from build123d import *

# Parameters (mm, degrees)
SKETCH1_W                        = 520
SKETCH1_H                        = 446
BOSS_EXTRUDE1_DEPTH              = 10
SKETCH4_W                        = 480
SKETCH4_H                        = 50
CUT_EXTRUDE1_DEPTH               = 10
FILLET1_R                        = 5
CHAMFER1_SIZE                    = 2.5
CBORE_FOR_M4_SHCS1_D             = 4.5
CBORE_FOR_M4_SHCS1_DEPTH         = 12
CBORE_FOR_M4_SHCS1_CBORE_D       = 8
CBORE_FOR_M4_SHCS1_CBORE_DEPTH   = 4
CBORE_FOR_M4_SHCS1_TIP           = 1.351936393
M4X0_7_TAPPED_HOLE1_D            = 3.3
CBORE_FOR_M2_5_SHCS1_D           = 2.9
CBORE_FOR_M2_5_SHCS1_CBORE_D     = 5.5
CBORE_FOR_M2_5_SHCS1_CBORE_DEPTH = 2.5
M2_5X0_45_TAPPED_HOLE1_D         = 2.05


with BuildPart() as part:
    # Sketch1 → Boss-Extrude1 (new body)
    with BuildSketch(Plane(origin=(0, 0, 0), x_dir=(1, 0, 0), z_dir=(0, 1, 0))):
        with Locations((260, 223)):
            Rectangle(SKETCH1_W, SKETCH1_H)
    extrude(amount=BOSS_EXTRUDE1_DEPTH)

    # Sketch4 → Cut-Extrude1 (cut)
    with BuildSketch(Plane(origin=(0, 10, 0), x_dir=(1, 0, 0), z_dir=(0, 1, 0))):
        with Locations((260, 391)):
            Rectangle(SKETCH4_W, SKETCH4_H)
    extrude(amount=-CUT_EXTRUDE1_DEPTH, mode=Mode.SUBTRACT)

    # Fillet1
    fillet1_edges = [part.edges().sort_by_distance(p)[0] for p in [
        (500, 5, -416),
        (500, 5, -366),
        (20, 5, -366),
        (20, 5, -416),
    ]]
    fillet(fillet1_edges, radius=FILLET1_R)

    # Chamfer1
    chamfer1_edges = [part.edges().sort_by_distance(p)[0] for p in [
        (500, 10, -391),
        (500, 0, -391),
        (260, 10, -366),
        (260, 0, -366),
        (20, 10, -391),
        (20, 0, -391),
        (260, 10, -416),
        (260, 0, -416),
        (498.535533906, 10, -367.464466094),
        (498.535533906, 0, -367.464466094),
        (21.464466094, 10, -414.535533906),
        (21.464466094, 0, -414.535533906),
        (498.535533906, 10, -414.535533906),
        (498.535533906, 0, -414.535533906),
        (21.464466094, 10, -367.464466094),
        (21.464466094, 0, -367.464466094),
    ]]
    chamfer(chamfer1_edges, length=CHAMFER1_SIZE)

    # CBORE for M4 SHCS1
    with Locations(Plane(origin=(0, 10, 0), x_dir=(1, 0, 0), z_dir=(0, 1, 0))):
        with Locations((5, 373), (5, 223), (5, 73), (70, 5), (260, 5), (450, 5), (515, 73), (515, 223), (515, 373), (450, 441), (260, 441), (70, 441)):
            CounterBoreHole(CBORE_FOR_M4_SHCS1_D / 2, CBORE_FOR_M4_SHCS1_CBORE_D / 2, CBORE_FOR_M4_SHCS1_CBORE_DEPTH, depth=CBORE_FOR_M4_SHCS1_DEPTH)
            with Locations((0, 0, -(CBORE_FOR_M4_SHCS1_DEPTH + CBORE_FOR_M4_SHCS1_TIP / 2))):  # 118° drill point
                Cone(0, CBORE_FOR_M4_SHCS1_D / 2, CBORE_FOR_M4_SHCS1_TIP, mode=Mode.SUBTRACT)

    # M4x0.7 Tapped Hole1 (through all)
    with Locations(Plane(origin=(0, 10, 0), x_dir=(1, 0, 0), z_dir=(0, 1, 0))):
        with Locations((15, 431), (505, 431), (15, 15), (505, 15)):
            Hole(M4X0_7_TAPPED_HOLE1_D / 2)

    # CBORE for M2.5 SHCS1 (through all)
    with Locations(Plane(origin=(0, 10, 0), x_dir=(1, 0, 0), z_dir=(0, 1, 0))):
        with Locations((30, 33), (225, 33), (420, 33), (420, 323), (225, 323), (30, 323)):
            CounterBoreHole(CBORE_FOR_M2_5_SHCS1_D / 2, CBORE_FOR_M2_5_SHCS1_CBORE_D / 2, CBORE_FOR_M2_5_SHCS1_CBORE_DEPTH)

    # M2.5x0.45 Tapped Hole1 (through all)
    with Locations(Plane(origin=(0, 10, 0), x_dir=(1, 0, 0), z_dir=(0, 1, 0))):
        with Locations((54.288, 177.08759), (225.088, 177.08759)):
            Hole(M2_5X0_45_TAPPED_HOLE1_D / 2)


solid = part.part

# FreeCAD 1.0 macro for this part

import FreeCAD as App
import Part
import Sketcher
Q = App.Units.Quantity


def edges_at(feature, points):
    """Names of the edges that pass closest to the given points."""
    edges = feature.Shape.Edges
    near = lambda p: min(range(len(edges)), key=lambda i: edges[i].distToShape(Part.Vertex(*p))[0])
    return sorted({f"Edge{near(p) + 1}" for p in points})


def add_polygon(sketch, points):
    """Adds a closed chain of lines whose ends are joined by coincident constraints."""
    first, n = sketch.GeometryCount, len(points)
    for a, b in zip(points, points[1:] + points[:1]):
        sketch.addGeometry(Part.LineSegment(App.Vector(*a, 0), App.Vector(*b, 0)), False)
    for i in range(n):
        sketch.addConstraint(Sketcher.Constraint("Coincident", first + i, 2, first + (i + 1) % n, 1))

doc = App.newDocument("Part")
params = doc.addObject("Spreadsheet::Sheet", "Params")
for row, (alias, value) in enumerate([
    ("sketch1_width", "520 mm"),
    ("sketch1_height", "446 mm"),
    ("pad1_length", "10 mm"),
    ("sketch2_width", "480 mm"),
    ("sketch2_height", "50 mm"),
    ("pocket1_length", "10 mm"),
    ("fillet_radius", "5 mm"),
    ("chamfer_size", "2.5 mm"),
    ("sketch3_diameter", "4.5 mm"),
    ("hole_diameter", "4.5 mm"),
    ("hole_depth", "12 mm"),
    ("hole_cbore_diameter", "8 mm"),
    ("hole_cbore_depth", "4 mm"),
    ("sketch4_diameter", "3.3 mm"),
    ("hole2_diameter", "3.3 mm"),
    ("sketch5_diameter", "2.9 mm"),
    ("hole3_diameter", "2.9 mm"),
    ("hole3_cbore_diameter", "5.5 mm"),
    ("hole3_cbore_depth", "2.5 mm"),
    ("sketch6_diameter", "2.05 mm"),
    ("hole4_diameter", "2.05 mm"),
], start=1):
    params.set(f"A{row}", alias)
    params.set(f"B{row}", "=" + value)
    params.setAlias(f"B{row}", alias)

body = doc.addObject("PartDesign::Body", "Body")

sketch1 = body.newObject("Sketcher::SketchObject", "Sketch")
sketch1.AttachmentSupport = (doc.getObject("XZ_Plane"), [""])
sketch1.MapMode = "FlatFace"
add_polygon(sketch1, [(0, -446), (0, 0), (520, 0), (520, -446)])
sketch1.addConstraint(Sketcher.Constraint("Vertical", 0))
sketch1.addConstraint(Sketcher.Constraint("Horizontal", 1))
sketch1.addConstraint(Sketcher.Constraint("Vertical", 2))
sketch1.addConstraint(Sketcher.Constraint("Horizontal", 3))
sketch1.addConstraint(Sketcher.Constraint("Coincident", 0, 2, -1, 1))
sketch1.addConstraint(Sketcher.Constraint("DistanceX", 1, 1, 1, 2, Q("520 mm")))
sketch1.addConstraint(Sketcher.Constraint("DistanceY", 0, 1, 0, 2, Q("446 mm")))
sketch1.setExpression("Constraints[9]", "Params.sketch1_width")
sketch1.setExpression("Constraints[10]", "Params.sketch1_height")
pad1 = body.newObject("PartDesign::Pad", "Pad")
pad1.Profile = sketch1
pad1.setExpression("Length", "Params.pad1_length")
pad1.Reversed = True

sketch2 = body.newObject("Sketcher::SketchObject", "Sketch001")
sketch2.AttachmentSupport = (doc.getObject("XZ_Plane"), [""])
sketch2.MapMode = "FlatFace"
sketch2.AttachmentOffset = App.Placement(App.Vector(0, 0, -10), App.Rotation())
add_polygon(sketch2, [(20, -416), (20, -366), (500, -366), (500, -416)])
sketch2.addConstraint(Sketcher.Constraint("Vertical", 0))
sketch2.addConstraint(Sketcher.Constraint("Horizontal", 1))
sketch2.addConstraint(Sketcher.Constraint("Vertical", 2))
sketch2.addConstraint(Sketcher.Constraint("Horizontal", 3))
sketch2.addConstraint(Sketcher.Constraint("DistanceX", 1, 1, 1, 2, Q("480 mm")))
sketch2.addConstraint(Sketcher.Constraint("DistanceY", 0, 1, 0, 2, Q("50 mm")))
sketch2.addConstraint(Sketcher.Constraint("DistanceX", -1, 1, 0, 2, Q("20 mm")))
sketch2.addConstraint(Sketcher.Constraint("DistanceY", 0, 2, -1, 1, Q("366 mm")))
sketch2.setExpression("Constraints[8]", "Params.sketch2_width")
sketch2.setExpression("Constraints[9]", "Params.sketch2_height")
pocket1 = body.newObject("PartDesign::Pocket", "Pocket")
pocket1.Profile = sketch2
pocket1.setExpression("Length", "Params.pocket1_length")
pocket1.Reversed = True
doc.recompute()

fillet = body.newObject("PartDesign::Fillet", "Fillet")
fillet.Base = (pocket1, edges_at(pocket1, [
    (500, 5, -416),
    (500, 5, -366),
    (20, 5, -366),
    (20, 5, -416),
]))
fillet.setExpression("Radius", "Params.fillet_radius")
doc.recompute()

chamfer = body.newObject("PartDesign::Chamfer", "Chamfer")
chamfer.Base = (fillet, edges_at(fillet, [
    (500, 10, -391),
    (500, 0, -391),
    (260, 10, -366),
    (260, 0, -366),
    (20, 10, -391),
    (20, 0, -391),
    (260, 10, -416),
    (260, 0, -416),
    (498.536, 10, -367.464),
    (498.536, 0, -367.464),
    (21.464, 10, -414.536),
    (21.464, 0, -414.536),
    (498.536, 10, -414.536),
    (498.536, 0, -414.536),
    (21.464, 10, -367.464),
    (21.464, 0, -367.464),
]))
chamfer.setExpression("Size", "Params.chamfer_size")

sketch3 = body.newObject("Sketcher::SketchObject", "Sketch002")
sketch3.AttachmentSupport = (doc.getObject("XZ_Plane"), [""])
sketch3.MapMode = "FlatFace"
sketch3.AttachmentOffset = App.Placement(App.Vector(0, 0, -10), App.Rotation())
sketch3.addGeometry(Part.Circle(App.Vector(5, -373, 0), App.Vector(0, 0, 1), 2.25), False)
sketch3.addGeometry(Part.Circle(App.Vector(5, -223, 0), App.Vector(0, 0, 1), 2.25), False)
sketch3.addGeometry(Part.Circle(App.Vector(5, -73, 0), App.Vector(0, 0, 1), 2.25), False)
sketch3.addGeometry(Part.Circle(App.Vector(70, -5, 0), App.Vector(0, 0, 1), 2.25), False)
sketch3.addGeometry(Part.Circle(App.Vector(260, -5, 0), App.Vector(0, 0, 1), 2.25), False)
sketch3.addGeometry(Part.Circle(App.Vector(450, -5, 0), App.Vector(0, 0, 1), 2.25), False)
sketch3.addGeometry(Part.Circle(App.Vector(515, -73, 0), App.Vector(0, 0, 1), 2.25), False)
sketch3.addGeometry(Part.Circle(App.Vector(515, -223, 0), App.Vector(0, 0, 1), 2.25), False)
sketch3.addGeometry(Part.Circle(App.Vector(515, -373, 0), App.Vector(0, 0, 1), 2.25), False)
sketch3.addGeometry(Part.Circle(App.Vector(450, -441, 0), App.Vector(0, 0, 1), 2.25), False)
sketch3.addGeometry(Part.Circle(App.Vector(260, -441, 0), App.Vector(0, 0, 1), 2.25), False)
sketch3.addGeometry(Part.Circle(App.Vector(70, -441, 0), App.Vector(0, 0, 1), 2.25), False)
sketch3.addConstraint(Sketcher.Constraint("Equal", 0, 1))
sketch3.addConstraint(Sketcher.Constraint("Equal", 1, 2))
sketch3.addConstraint(Sketcher.Constraint("Equal", 2, 3))
sketch3.addConstraint(Sketcher.Constraint("Equal", 3, 4))
sketch3.addConstraint(Sketcher.Constraint("Equal", 4, 5))
sketch3.addConstraint(Sketcher.Constraint("Equal", 5, 6))
sketch3.addConstraint(Sketcher.Constraint("Equal", 6, 7))
sketch3.addConstraint(Sketcher.Constraint("Equal", 7, 8))
sketch3.addConstraint(Sketcher.Constraint("Equal", 8, 9))
sketch3.addConstraint(Sketcher.Constraint("Equal", 9, 10))
sketch3.addConstraint(Sketcher.Constraint("Equal", 10, 11))
sketch3.addConstraint(Sketcher.Constraint("Horizontal", 3, 3, 4, 3))
sketch3.addConstraint(Sketcher.Constraint("Horizontal", 4, 3, 5, 3))
sketch3.addConstraint(Sketcher.Constraint("Horizontal", 2, 3, 6, 3))
sketch3.addConstraint(Sketcher.Constraint("Horizontal", 1, 3, 7, 3))
sketch3.addConstraint(Sketcher.Constraint("Horizontal", 0, 3, 8, 3))
sketch3.addConstraint(Sketcher.Constraint("Horizontal", 9, 3, 10, 3))
sketch3.addConstraint(Sketcher.Constraint("Horizontal", 10, 3, 11, 3))
sketch3.addConstraint(Sketcher.Constraint("Vertical", 0, 3, 1, 3))
sketch3.addConstraint(Sketcher.Constraint("Vertical", 1, 3, 2, 3))
sketch3.addConstraint(Sketcher.Constraint("Vertical", 6, 3, 7, 3))
sketch3.addConstraint(Sketcher.Constraint("Vertical", 7, 3, 8, 3))
sketch3.addConstraint(Sketcher.Constraint("Vertical", 5, 3, 9, 3))
sketch3.addConstraint(Sketcher.Constraint("Vertical", 4, 3, 10, 3))
sketch3.addConstraint(Sketcher.Constraint("Vertical", 3, 3, 11, 3))
sketch3.addConstraint(Sketcher.Constraint("Diameter", 0, Q("4.5 mm")))
sketch3.addConstraint(Sketcher.Constraint("DistanceX", -1, 1, 0, 3, Q("5 mm")))
sketch3.addConstraint(Sketcher.Constraint("DistanceY", 0, 3, -1, 1, Q("373 mm")))
sketch3.addConstraint(Sketcher.Constraint("DistanceY", 1, 3, -1, 1, Q("223 mm")))
sketch3.addConstraint(Sketcher.Constraint("DistanceY", 2, 3, -1, 1, Q("73 mm")))
sketch3.addConstraint(Sketcher.Constraint("DistanceX", -1, 1, 3, 3, Q("70 mm")))
sketch3.addConstraint(Sketcher.Constraint("DistanceY", 3, 3, -1, 1, Q("5 mm")))
sketch3.addConstraint(Sketcher.Constraint("DistanceX", -1, 1, 4, 3, Q("260 mm")))
sketch3.addConstraint(Sketcher.Constraint("DistanceX", -1, 1, 5, 3, Q("450 mm")))
sketch3.addConstraint(Sketcher.Constraint("DistanceX", -1, 1, 6, 3, Q("515 mm")))
sketch3.addConstraint(Sketcher.Constraint("DistanceY", 9, 3, -1, 1, Q("441 mm")))
sketch3.setExpression("Constraints[25]", "Params.sketch3_diameter")
doc.recompute()
hole = body.newObject("PartDesign::Hole", "Hole")
hole.Profile = sketch3
hole.ThreadType = "None"
hole.setExpression("Diameter", "Params.hole_diameter")
hole.DepthType = "Dimension"
hole.setExpression("Depth", "Params.hole_depth")
hole.DrillPoint = "Angled"
hole.DrillPointAngle = 118
hole.HoleCutType = "Counterbore"
hole.setExpression("HoleCutDiameter", "Params.hole_cbore_diameter")
hole.setExpression("HoleCutDepth", "Params.hole_cbore_depth")
hole.Reversed = True

sketch4 = body.newObject("Sketcher::SketchObject", "Sketch003")
sketch4.AttachmentSupport = (doc.getObject("XZ_Plane"), [""])
sketch4.MapMode = "FlatFace"
sketch4.AttachmentOffset = App.Placement(App.Vector(0, 0, -10), App.Rotation())
sketch4.addGeometry(Part.Circle(App.Vector(15, -431, 0), App.Vector(0, 0, 1), 1.65), False)
sketch4.addGeometry(Part.Circle(App.Vector(505, -431, 0), App.Vector(0, 0, 1), 1.65), False)
sketch4.addGeometry(Part.Circle(App.Vector(15, -15, 0), App.Vector(0, 0, 1), 1.65), False)
sketch4.addGeometry(Part.Circle(App.Vector(505, -15, 0), App.Vector(0, 0, 1), 1.65), False)
sketch4.addConstraint(Sketcher.Constraint("Equal", 0, 1))
sketch4.addConstraint(Sketcher.Constraint("Equal", 1, 2))
sketch4.addConstraint(Sketcher.Constraint("Equal", 2, 3))
sketch4.addConstraint(Sketcher.Constraint("Horizontal", 0, 3, 1, 3))
sketch4.addConstraint(Sketcher.Constraint("Horizontal", 2, 3, 3, 3))
sketch4.addConstraint(Sketcher.Constraint("Vertical", 0, 3, 2, 3))
sketch4.addConstraint(Sketcher.Constraint("Vertical", 1, 3, 3, 3))
sketch4.addConstraint(Sketcher.Constraint("Diameter", 0, Q("3.3 mm")))
sketch4.addConstraint(Sketcher.Constraint("DistanceX", -1, 1, 0, 3, Q("15 mm")))
sketch4.addConstraint(Sketcher.Constraint("DistanceY", 0, 3, -1, 1, Q("431 mm")))
sketch4.addConstraint(Sketcher.Constraint("DistanceX", -1, 1, 1, 3, Q("505 mm")))
sketch4.addConstraint(Sketcher.Constraint("DistanceY", 2, 3, -1, 1, Q("15 mm")))
sketch4.setExpression("Constraints[7]", "Params.sketch4_diameter")
doc.recompute()
hole2 = body.newObject("PartDesign::Hole", "Hole001")
hole2.Profile = sketch4
hole2.ThreadType = "None"
hole2.setExpression("Diameter", "Params.hole2_diameter")
hole2.DepthType = "ThroughAll"
hole2.Reversed = True

sketch5 = body.newObject("Sketcher::SketchObject", "Sketch004")
sketch5.AttachmentSupport = (doc.getObject("XZ_Plane"), [""])
sketch5.MapMode = "FlatFace"
sketch5.AttachmentOffset = App.Placement(App.Vector(0, 0, -10), App.Rotation())
sketch5.addGeometry(Part.Circle(App.Vector(30, -33, 0), App.Vector(0, 0, 1), 1.45), False)
sketch5.addGeometry(Part.Circle(App.Vector(225, -33, 0), App.Vector(0, 0, 1), 1.45), False)
sketch5.addGeometry(Part.Circle(App.Vector(420, -33, 0), App.Vector(0, 0, 1), 1.45), False)
sketch5.addGeometry(Part.Circle(App.Vector(420, -323, 0), App.Vector(0, 0, 1), 1.45), False)
sketch5.addGeometry(Part.Circle(App.Vector(225, -323, 0), App.Vector(0, 0, 1), 1.45), False)
sketch5.addGeometry(Part.Circle(App.Vector(30, -323, 0), App.Vector(0, 0, 1), 1.45), False)
sketch5.addConstraint(Sketcher.Constraint("Equal", 0, 1))
sketch5.addConstraint(Sketcher.Constraint("Equal", 1, 2))
sketch5.addConstraint(Sketcher.Constraint("Equal", 2, 3))
sketch5.addConstraint(Sketcher.Constraint("Equal", 3, 4))
sketch5.addConstraint(Sketcher.Constraint("Equal", 4, 5))
sketch5.addConstraint(Sketcher.Constraint("Horizontal", 0, 3, 1, 3))
sketch5.addConstraint(Sketcher.Constraint("Horizontal", 1, 3, 2, 3))
sketch5.addConstraint(Sketcher.Constraint("Horizontal", 3, 3, 4, 3))
sketch5.addConstraint(Sketcher.Constraint("Horizontal", 4, 3, 5, 3))
sketch5.addConstraint(Sketcher.Constraint("Vertical", 2, 3, 3, 3))
sketch5.addConstraint(Sketcher.Constraint("Vertical", 1, 3, 4, 3))
sketch5.addConstraint(Sketcher.Constraint("Vertical", 0, 3, 5, 3))
sketch5.addConstraint(Sketcher.Constraint("Diameter", 0, Q("2.9 mm")))
sketch5.addConstraint(Sketcher.Constraint("DistanceX", -1, 1, 0, 3, Q("30 mm")))
sketch5.addConstraint(Sketcher.Constraint("DistanceY", 0, 3, -1, 1, Q("33 mm")))
sketch5.addConstraint(Sketcher.Constraint("DistanceX", -1, 1, 1, 3, Q("225 mm")))
sketch5.addConstraint(Sketcher.Constraint("DistanceX", -1, 1, 2, 3, Q("420 mm")))
sketch5.addConstraint(Sketcher.Constraint("DistanceY", 3, 3, -1, 1, Q("323 mm")))
sketch5.setExpression("Constraints[12]", "Params.sketch5_diameter")
doc.recompute()
hole3 = body.newObject("PartDesign::Hole", "Hole002")
hole3.Profile = sketch5
hole3.ThreadType = "None"
hole3.setExpression("Diameter", "Params.hole3_diameter")
hole3.DepthType = "ThroughAll"
hole3.HoleCutType = "Counterbore"
hole3.setExpression("HoleCutDiameter", "Params.hole3_cbore_diameter")
hole3.setExpression("HoleCutDepth", "Params.hole3_cbore_depth")
hole3.Reversed = True

sketch6 = body.newObject("Sketcher::SketchObject", "Sketch005")
sketch6.AttachmentSupport = (doc.getObject("XZ_Plane"), [""])
sketch6.MapMode = "FlatFace"
sketch6.AttachmentOffset = App.Placement(App.Vector(0, 0, -10), App.Rotation())
sketch6.addGeometry(Part.Circle(App.Vector(54.288, -177.08759, 0), App.Vector(0, 0, 1), 1.025), False)
sketch6.addGeometry(Part.Circle(App.Vector(225.088, -177.08759, 0), App.Vector(0, 0, 1), 1.025), False)
sketch6.addConstraint(Sketcher.Constraint("Equal", 0, 1))
sketch6.addConstraint(Sketcher.Constraint("Horizontal", 0, 3, 1, 3))
sketch6.addConstraint(Sketcher.Constraint("Diameter", 0, Q("2.05 mm")))
sketch6.addConstraint(Sketcher.Constraint("DistanceX", 0, 3, 1, 3, Q("170.8 mm")))
sketch6.addConstraint(Sketcher.Constraint("DistanceX", -1, 1, 0, 3, Q("54.288 mm")))
sketch6.addConstraint(Sketcher.Constraint("DistanceY", 0, 3, -1, 1, Q("177.08759 mm")))
sketch6.setExpression("Constraints[2]", "Params.sketch6_diameter")
doc.recompute()
hole4 = body.newObject("PartDesign::Hole", "Hole003")
hole4.Profile = sketch6
hole4.ThreadType = "None"
hole4.setExpression("Diameter", "Params.hole4_diameter")
hole4.DepthType = "ThroughAll"
hole4.Reversed = True

doc.recompute()
